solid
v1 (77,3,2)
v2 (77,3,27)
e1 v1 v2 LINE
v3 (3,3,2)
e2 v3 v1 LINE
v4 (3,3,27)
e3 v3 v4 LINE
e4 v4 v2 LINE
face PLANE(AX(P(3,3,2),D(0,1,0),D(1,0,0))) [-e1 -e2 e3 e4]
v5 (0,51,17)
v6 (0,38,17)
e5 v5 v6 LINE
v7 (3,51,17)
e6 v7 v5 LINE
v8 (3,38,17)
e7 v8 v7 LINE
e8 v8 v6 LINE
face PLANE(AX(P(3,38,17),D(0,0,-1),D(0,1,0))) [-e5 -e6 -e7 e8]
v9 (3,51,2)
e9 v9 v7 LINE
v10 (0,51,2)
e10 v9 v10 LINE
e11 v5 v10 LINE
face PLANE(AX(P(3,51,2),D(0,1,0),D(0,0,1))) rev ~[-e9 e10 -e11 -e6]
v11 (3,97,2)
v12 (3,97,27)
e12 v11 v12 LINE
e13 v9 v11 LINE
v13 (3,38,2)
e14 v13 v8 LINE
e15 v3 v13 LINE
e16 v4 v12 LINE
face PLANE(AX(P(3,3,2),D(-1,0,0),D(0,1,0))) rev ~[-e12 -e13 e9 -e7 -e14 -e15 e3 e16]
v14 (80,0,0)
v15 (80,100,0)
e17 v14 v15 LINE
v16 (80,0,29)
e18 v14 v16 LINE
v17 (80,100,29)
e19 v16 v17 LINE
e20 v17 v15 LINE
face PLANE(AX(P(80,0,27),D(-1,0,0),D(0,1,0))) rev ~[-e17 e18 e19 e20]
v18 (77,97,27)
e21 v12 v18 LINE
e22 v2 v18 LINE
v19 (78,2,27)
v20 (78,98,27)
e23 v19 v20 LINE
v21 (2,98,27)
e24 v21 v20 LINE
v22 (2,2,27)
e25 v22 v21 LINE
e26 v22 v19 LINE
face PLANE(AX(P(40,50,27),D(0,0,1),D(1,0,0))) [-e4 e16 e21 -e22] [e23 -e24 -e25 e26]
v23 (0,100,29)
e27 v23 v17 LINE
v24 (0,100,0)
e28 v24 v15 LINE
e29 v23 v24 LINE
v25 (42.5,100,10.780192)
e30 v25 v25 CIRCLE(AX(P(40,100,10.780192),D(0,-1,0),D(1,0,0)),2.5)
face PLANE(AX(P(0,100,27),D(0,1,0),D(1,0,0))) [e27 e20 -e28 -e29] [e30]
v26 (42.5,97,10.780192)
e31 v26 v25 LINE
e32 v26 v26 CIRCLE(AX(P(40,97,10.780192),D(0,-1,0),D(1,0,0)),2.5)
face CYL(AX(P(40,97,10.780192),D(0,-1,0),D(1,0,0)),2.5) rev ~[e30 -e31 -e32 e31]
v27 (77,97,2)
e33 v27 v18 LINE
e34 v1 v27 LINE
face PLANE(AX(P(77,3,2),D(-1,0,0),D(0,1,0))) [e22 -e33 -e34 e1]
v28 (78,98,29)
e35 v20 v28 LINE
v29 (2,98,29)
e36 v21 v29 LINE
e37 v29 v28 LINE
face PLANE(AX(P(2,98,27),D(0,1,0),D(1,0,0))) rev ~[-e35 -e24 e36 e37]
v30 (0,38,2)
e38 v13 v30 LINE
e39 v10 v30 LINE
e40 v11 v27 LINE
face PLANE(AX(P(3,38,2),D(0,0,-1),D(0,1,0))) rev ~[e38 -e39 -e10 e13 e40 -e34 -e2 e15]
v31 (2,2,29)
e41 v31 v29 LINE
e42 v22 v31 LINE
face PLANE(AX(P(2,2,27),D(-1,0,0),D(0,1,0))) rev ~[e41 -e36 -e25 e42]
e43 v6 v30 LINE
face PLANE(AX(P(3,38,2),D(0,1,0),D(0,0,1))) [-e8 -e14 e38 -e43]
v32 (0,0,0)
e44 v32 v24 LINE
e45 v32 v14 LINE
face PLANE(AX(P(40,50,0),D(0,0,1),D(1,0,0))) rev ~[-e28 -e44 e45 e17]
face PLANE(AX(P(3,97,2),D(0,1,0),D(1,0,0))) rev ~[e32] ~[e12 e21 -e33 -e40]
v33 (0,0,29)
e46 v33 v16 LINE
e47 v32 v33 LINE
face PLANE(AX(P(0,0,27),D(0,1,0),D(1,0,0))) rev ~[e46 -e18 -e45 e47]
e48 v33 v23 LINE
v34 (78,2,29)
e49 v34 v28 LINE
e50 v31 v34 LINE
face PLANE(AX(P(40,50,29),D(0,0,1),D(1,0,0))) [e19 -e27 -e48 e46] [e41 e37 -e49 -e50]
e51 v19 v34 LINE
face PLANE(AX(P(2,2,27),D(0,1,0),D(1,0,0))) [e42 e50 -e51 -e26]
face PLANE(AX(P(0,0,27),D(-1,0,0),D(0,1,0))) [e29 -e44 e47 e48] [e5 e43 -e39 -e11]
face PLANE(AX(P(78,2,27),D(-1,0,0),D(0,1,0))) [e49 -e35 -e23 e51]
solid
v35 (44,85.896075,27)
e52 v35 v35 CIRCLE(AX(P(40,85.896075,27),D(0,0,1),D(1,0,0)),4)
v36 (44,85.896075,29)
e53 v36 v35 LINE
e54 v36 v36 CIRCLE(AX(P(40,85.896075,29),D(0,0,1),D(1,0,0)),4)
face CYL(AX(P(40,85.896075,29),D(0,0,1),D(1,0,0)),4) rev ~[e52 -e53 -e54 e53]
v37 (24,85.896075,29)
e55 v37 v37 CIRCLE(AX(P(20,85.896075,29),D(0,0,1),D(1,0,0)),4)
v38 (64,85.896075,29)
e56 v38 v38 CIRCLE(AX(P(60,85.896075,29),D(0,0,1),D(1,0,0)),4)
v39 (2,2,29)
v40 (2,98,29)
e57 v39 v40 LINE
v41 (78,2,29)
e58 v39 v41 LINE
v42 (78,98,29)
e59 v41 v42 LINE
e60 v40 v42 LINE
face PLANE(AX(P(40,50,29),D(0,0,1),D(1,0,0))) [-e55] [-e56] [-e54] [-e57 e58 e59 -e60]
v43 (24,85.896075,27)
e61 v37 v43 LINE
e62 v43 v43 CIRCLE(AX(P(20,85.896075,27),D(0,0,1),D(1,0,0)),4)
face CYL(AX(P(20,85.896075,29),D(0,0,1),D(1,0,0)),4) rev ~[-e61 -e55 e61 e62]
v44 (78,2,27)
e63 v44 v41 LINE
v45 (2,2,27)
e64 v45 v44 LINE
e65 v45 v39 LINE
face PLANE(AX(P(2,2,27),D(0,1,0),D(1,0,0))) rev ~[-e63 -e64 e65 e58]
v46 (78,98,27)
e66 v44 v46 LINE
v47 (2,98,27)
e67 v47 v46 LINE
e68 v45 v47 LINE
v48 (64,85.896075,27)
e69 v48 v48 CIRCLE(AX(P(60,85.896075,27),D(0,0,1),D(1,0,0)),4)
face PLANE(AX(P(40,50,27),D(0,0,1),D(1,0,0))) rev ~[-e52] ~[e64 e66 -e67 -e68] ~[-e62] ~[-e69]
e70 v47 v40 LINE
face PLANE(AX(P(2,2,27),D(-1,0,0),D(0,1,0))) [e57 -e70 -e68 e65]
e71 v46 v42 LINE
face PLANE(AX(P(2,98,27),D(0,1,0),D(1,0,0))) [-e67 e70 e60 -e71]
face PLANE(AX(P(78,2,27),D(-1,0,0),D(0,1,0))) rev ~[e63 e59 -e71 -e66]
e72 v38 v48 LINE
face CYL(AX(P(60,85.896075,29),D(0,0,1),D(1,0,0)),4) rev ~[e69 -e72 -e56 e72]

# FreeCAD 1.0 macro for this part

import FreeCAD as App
import Part
import Sketcher

V = App.Vector


def add_polygon(sketch, points):
    """Adds a closed chain of lines whose ends are joined by coincident constraints."""
    first, n = sketch.GeometryCount, len(points)
    for a, b in zip(points, points[1:] + points[:1]):
        sketch.addGeometry(Part.LineSegment(App.Vector(*a, 0), App.Vector(*b, 0)), False)
    for i in range(n):
        sketch.addConstraint(Sketcher.Constraint("Coincident", first + i, 2, first + (i + 1) % n, 1))

doc = App.newDocument("Part")
body = doc.addObject("PartDesign::Body", "Body")

# Sketch on XY plane
sketch1 = body.newObject("Sketcher::SketchObject", "Sketch")
sketch1.AttachmentSupport = (doc.getObject("XY_Plane"), [""])
sketch1.MapMode = "FlatFace"
add_polygon(sketch1, [(0, 100), (0, 0), (80, 0), (80, 100)])  # lines 0-3
sketch1.addConstraint([
    Sketcher.Constraint("Vertical", 0),
    Sketcher.Constraint("Horizontal", 1),
    Sketcher.Constraint("Vertical", 2),
    Sketcher.Constraint("Horizontal", 3),
    Sketcher.Constraint("Coincident", 0, 2, -1, 1),
    Sketcher.Constraint("DistanceX", 1, 1, 1, 2, 80.0),
    Sketcher.Constraint("DistanceY", 0, 2, 0, 1, 100.0),
])
pad1 = body.newObject("PartDesign::Pad", "Pad")
pad1.Profile = sketch1
pad1.Length = 2

# Sketch on XY plane
sketch2 = body.newObject("Sketcher::SketchObject", "Sketch001")
sketch2.AttachmentSupport = (doc.getObject("XY_Plane"), [""])
sketch2.MapMode = "FlatFace"
sketch2.AttachmentOffset = App.Placement(V(0, 0, 2), App.Rotation())
add_polygon(sketch2, [(0, 100), (0, 0), (80, 0), (80, 100)])  # lines 0-3
add_polygon(sketch2, [(77, 3), (3, 3), (3, 97), (77, 97)])  # lines 4-7
sketch2.addConstraint([
    Sketcher.Constraint("Vertical", 0),
    Sketcher.Constraint("Horizontal", 1),
    Sketcher.Constraint("Vertical", 2),
    Sketcher.Constraint("Horizontal", 3),
    Sketcher.Constraint("Horizontal", 4),
    Sketcher.Constraint("Vertical", 5),
    Sketcher.Constraint("Horizontal", 6),
    Sketcher.Constraint("Vertical", 7),
    Sketcher.Constraint("Coincident", 0, 2, -1, 1),
    Sketcher.Constraint("DistanceX", 1, 1, 1, 2, 80.0),
    Sketcher.Constraint("DistanceX", 4, 2, 4, 1, 74.0),
    Sketcher.Constraint("DistanceY", 0, 2, 0, 1, 100.0),
    Sketcher.Constraint("DistanceY", 5, 1, 5, 2, 94.0),
    Sketcher.Constraint("DistanceX", -1, 1, 4, 2, 3.0),
    Sketcher.Constraint("DistanceY", -1, 1, 4, 2, 3.0),
])
pad2 = body.newObject("PartDesign::Pad", "Pad001")
pad2.Profile = sketch2
pad2.Length = 25

# Sketch on YZ plane
sketch3 = body.newObject("Sketcher::SketchObject", "Sketch002")
sketch3.AttachmentSupport = (doc.getObject("YZ_Plane"), [""])
sketch3.MapMode = "FlatFace"
sketch3.AttachmentOffset = App.Placement(V(0, 0, 3), App.Rotation())
add_polygon(sketch3, [(38, 17), (38, 2), (51, 2), (51, 17)])  # lines 0-3
sketch3.addConstraint([
    Sketcher.Constraint("Vertical", 0),
    Sketcher.Constraint("Horizontal", 1),
    Sketcher.Constraint("Vertical", 2),
    Sketcher.Constraint("Horizontal", 3),
    Sketcher.Constraint("DistanceX", 1, 1, 1, 2, 13.0),
    Sketcher.Constraint("DistanceY", 0, 2, 0, 1, 15.0),
    Sketcher.Constraint("DistanceX", -1, 1, 0, 2, 38.0),
    Sketcher.Constraint("DistanceY", -1, 1, 0, 2, 2.0),
])
pocket1 = body.newObject("PartDesign::Pocket", "Pocket")
pocket1.Profile = sketch3
pocket1.Type = "ThroughAll"

# Sketch on XY plane
sketch4 = body.newObject("Sketcher::SketchObject", "Sketch003")
sketch4.AttachmentSupport = (doc.getObject("XY_Plane"), [""])
sketch4.MapMode = "FlatFace"
sketch4.AttachmentOffset = App.Placement(V(0, 0, 27), App.Rotation())
add_polygon(sketch4, [(0, 100), (0, 0), (80, 0), (80, 100)])  # lines 0-3
add_polygon(sketch4, [(78, 2), (2, 2), (2, 98), (78, 98)])  # lines 4-7
sketch4.addConstraint([
    Sketcher.Constraint("Vertical", 0),
    Sketcher.Constraint("Horizontal", 1),
    Sketcher.Constraint("Vertical", 2),
    Sketcher.Constraint("Horizontal", 3),
    Sketcher.Constraint("Horizontal", 4),
    Sketcher.Constraint("Vertical", 5),
    Sketcher.Constraint("Horizontal", 6),
    Sketcher.Constraint("Vertical", 7),
    Sketcher.Constraint("Coincident", 0, 2, -1, 1),
    Sketcher.Constraint("DistanceX", 1, 1, 1, 2, 80.0),
    Sketcher.Constraint("DistanceX", 4, 2, 4, 1, 76.0),
    Sketcher.Constraint("DistanceY", 0, 2, 0, 1, 100.0),
    Sketcher.Constraint("DistanceY", 5, 1, 5, 2, 96.0),
    Sketcher.Constraint("DistanceX", -1, 1, 4, 2, 2.0),
    Sketcher.Constraint("DistanceY", -1, 1, 4, 2, 2.0),
])
pad3 = body.newObject("PartDesign::Pad", "Pad002")
pad3.Profile = sketch4
pad3.Length = 2

# Sketch on XZ plane
sketch5 = body.newObject("Sketcher::SketchObject", "Sketch004")
sketch5.AttachmentSupport = (doc.getObject("XZ_Plane"), [""])
sketch5.MapMode = "FlatFace"
sketch5.AttachmentOffset = App.Placement(V(0, 0, -97), App.Rotation())
sketch5.addGeometry(Part.Circle(V(40, 10.8, 0), V(0, 0, 1), 2.5), False)
sketch5.addConstraint([
    Sketcher.Constraint("Diameter", 0, 5.0),
    Sketcher.Constraint("DistanceX", -1, 1, 0, 3, 40.0),
    Sketcher.Constraint("DistanceY", -1, 1, 0, 3, 10.780192),
])
pocket2 = body.newObject("PartDesign::Pocket", "Pocket001")
pocket2.Profile = sketch5
pocket2.Type = "ThroughAll"
body2 = doc.addObject("PartDesign::Body", "Body001")

# Sketch on XY plane
sketch6 = body2.newObject("Sketcher::SketchObject", "Sketch005")
sketch6.AttachmentSupport = (doc.getObject("XY_Plane001"), [""])
sketch6.MapMode = "FlatFace"
sketch6.AttachmentOffset = App.Placement(V(0, 0, 27), App.Rotation())
add_polygon(sketch6, [(2, 98), (2, 2), (78, 2), (78, 98)])  # lines 0-3
sketch6.addConstraint([
    Sketcher.Constraint("Vertical", 0),
    Sketcher.Constraint("Horizontal", 1),
    Sketcher.Constraint("Vertical", 2),
    Sketcher.Constraint("Horizontal", 3),
    Sketcher.Constraint("DistanceX", 1, 1, 1, 2, 76.0),
    Sketcher.Constraint("DistanceY", 0, 2, 0, 1, 96.0),
    Sketcher.Constraint("DistanceX", -1, 1, 0, 2, 2.0),
    Sketcher.Constraint("DistanceY", -1, 1, 0, 2, 2.0),
])
pad4 = body2.newObject("PartDesign::Pad", "Pad003")
pad4.Profile = sketch6
pad4.Length = 2

# Sketch on XY plane
sketch7 = body2.newObject("Sketcher::SketchObject", "Sketch006")
sketch7.AttachmentSupport = (doc.getObject("XY_Plane001"), [""])
sketch7.MapMode = "FlatFace"
sketch7.AttachmentOffset = App.Placement(V(0, 0, 29), App.Rotation())
sketch7.addGeometry([
    Part.Circle(V(20, 85.9, 0), V(0, 0, 1), 4),
    Part.Circle(V(40, 85.9, 0), V(0, 0, 1), 4),
    Part.Circle(V(60, 85.9, 0), V(0, 0, 1), 4),
], False)
sketch7.addConstraint([
    Sketcher.Constraint("Equal", 0, 1),
    Sketcher.Constraint("Equal", 1, 2),
    Sketcher.Constraint("Horizontal", 0, 3, 1, 3),
    Sketcher.Constraint("Horizontal", 1, 3, 2, 3),
    Sketcher.Constraint("Diameter", 0, 8.0),
    Sketcher.Constraint("DistanceX", -1, 1, 0, 3, 20.0),
    Sketcher.Constraint("DistanceX", -1, 1, 1, 3, 40.0),
    Sketcher.Constraint("DistanceX", -1, 1, 2, 3, 60.0),
    Sketcher.Constraint("DistanceY", -1, 1, 0, 3, 85.896075),
])
pocket3 = body2.newObject("PartDesign::Pocket", "Pocket002")
pocket3.Profile = sketch7
pocket3.Type = "ThroughAll"

doc.recompute()
